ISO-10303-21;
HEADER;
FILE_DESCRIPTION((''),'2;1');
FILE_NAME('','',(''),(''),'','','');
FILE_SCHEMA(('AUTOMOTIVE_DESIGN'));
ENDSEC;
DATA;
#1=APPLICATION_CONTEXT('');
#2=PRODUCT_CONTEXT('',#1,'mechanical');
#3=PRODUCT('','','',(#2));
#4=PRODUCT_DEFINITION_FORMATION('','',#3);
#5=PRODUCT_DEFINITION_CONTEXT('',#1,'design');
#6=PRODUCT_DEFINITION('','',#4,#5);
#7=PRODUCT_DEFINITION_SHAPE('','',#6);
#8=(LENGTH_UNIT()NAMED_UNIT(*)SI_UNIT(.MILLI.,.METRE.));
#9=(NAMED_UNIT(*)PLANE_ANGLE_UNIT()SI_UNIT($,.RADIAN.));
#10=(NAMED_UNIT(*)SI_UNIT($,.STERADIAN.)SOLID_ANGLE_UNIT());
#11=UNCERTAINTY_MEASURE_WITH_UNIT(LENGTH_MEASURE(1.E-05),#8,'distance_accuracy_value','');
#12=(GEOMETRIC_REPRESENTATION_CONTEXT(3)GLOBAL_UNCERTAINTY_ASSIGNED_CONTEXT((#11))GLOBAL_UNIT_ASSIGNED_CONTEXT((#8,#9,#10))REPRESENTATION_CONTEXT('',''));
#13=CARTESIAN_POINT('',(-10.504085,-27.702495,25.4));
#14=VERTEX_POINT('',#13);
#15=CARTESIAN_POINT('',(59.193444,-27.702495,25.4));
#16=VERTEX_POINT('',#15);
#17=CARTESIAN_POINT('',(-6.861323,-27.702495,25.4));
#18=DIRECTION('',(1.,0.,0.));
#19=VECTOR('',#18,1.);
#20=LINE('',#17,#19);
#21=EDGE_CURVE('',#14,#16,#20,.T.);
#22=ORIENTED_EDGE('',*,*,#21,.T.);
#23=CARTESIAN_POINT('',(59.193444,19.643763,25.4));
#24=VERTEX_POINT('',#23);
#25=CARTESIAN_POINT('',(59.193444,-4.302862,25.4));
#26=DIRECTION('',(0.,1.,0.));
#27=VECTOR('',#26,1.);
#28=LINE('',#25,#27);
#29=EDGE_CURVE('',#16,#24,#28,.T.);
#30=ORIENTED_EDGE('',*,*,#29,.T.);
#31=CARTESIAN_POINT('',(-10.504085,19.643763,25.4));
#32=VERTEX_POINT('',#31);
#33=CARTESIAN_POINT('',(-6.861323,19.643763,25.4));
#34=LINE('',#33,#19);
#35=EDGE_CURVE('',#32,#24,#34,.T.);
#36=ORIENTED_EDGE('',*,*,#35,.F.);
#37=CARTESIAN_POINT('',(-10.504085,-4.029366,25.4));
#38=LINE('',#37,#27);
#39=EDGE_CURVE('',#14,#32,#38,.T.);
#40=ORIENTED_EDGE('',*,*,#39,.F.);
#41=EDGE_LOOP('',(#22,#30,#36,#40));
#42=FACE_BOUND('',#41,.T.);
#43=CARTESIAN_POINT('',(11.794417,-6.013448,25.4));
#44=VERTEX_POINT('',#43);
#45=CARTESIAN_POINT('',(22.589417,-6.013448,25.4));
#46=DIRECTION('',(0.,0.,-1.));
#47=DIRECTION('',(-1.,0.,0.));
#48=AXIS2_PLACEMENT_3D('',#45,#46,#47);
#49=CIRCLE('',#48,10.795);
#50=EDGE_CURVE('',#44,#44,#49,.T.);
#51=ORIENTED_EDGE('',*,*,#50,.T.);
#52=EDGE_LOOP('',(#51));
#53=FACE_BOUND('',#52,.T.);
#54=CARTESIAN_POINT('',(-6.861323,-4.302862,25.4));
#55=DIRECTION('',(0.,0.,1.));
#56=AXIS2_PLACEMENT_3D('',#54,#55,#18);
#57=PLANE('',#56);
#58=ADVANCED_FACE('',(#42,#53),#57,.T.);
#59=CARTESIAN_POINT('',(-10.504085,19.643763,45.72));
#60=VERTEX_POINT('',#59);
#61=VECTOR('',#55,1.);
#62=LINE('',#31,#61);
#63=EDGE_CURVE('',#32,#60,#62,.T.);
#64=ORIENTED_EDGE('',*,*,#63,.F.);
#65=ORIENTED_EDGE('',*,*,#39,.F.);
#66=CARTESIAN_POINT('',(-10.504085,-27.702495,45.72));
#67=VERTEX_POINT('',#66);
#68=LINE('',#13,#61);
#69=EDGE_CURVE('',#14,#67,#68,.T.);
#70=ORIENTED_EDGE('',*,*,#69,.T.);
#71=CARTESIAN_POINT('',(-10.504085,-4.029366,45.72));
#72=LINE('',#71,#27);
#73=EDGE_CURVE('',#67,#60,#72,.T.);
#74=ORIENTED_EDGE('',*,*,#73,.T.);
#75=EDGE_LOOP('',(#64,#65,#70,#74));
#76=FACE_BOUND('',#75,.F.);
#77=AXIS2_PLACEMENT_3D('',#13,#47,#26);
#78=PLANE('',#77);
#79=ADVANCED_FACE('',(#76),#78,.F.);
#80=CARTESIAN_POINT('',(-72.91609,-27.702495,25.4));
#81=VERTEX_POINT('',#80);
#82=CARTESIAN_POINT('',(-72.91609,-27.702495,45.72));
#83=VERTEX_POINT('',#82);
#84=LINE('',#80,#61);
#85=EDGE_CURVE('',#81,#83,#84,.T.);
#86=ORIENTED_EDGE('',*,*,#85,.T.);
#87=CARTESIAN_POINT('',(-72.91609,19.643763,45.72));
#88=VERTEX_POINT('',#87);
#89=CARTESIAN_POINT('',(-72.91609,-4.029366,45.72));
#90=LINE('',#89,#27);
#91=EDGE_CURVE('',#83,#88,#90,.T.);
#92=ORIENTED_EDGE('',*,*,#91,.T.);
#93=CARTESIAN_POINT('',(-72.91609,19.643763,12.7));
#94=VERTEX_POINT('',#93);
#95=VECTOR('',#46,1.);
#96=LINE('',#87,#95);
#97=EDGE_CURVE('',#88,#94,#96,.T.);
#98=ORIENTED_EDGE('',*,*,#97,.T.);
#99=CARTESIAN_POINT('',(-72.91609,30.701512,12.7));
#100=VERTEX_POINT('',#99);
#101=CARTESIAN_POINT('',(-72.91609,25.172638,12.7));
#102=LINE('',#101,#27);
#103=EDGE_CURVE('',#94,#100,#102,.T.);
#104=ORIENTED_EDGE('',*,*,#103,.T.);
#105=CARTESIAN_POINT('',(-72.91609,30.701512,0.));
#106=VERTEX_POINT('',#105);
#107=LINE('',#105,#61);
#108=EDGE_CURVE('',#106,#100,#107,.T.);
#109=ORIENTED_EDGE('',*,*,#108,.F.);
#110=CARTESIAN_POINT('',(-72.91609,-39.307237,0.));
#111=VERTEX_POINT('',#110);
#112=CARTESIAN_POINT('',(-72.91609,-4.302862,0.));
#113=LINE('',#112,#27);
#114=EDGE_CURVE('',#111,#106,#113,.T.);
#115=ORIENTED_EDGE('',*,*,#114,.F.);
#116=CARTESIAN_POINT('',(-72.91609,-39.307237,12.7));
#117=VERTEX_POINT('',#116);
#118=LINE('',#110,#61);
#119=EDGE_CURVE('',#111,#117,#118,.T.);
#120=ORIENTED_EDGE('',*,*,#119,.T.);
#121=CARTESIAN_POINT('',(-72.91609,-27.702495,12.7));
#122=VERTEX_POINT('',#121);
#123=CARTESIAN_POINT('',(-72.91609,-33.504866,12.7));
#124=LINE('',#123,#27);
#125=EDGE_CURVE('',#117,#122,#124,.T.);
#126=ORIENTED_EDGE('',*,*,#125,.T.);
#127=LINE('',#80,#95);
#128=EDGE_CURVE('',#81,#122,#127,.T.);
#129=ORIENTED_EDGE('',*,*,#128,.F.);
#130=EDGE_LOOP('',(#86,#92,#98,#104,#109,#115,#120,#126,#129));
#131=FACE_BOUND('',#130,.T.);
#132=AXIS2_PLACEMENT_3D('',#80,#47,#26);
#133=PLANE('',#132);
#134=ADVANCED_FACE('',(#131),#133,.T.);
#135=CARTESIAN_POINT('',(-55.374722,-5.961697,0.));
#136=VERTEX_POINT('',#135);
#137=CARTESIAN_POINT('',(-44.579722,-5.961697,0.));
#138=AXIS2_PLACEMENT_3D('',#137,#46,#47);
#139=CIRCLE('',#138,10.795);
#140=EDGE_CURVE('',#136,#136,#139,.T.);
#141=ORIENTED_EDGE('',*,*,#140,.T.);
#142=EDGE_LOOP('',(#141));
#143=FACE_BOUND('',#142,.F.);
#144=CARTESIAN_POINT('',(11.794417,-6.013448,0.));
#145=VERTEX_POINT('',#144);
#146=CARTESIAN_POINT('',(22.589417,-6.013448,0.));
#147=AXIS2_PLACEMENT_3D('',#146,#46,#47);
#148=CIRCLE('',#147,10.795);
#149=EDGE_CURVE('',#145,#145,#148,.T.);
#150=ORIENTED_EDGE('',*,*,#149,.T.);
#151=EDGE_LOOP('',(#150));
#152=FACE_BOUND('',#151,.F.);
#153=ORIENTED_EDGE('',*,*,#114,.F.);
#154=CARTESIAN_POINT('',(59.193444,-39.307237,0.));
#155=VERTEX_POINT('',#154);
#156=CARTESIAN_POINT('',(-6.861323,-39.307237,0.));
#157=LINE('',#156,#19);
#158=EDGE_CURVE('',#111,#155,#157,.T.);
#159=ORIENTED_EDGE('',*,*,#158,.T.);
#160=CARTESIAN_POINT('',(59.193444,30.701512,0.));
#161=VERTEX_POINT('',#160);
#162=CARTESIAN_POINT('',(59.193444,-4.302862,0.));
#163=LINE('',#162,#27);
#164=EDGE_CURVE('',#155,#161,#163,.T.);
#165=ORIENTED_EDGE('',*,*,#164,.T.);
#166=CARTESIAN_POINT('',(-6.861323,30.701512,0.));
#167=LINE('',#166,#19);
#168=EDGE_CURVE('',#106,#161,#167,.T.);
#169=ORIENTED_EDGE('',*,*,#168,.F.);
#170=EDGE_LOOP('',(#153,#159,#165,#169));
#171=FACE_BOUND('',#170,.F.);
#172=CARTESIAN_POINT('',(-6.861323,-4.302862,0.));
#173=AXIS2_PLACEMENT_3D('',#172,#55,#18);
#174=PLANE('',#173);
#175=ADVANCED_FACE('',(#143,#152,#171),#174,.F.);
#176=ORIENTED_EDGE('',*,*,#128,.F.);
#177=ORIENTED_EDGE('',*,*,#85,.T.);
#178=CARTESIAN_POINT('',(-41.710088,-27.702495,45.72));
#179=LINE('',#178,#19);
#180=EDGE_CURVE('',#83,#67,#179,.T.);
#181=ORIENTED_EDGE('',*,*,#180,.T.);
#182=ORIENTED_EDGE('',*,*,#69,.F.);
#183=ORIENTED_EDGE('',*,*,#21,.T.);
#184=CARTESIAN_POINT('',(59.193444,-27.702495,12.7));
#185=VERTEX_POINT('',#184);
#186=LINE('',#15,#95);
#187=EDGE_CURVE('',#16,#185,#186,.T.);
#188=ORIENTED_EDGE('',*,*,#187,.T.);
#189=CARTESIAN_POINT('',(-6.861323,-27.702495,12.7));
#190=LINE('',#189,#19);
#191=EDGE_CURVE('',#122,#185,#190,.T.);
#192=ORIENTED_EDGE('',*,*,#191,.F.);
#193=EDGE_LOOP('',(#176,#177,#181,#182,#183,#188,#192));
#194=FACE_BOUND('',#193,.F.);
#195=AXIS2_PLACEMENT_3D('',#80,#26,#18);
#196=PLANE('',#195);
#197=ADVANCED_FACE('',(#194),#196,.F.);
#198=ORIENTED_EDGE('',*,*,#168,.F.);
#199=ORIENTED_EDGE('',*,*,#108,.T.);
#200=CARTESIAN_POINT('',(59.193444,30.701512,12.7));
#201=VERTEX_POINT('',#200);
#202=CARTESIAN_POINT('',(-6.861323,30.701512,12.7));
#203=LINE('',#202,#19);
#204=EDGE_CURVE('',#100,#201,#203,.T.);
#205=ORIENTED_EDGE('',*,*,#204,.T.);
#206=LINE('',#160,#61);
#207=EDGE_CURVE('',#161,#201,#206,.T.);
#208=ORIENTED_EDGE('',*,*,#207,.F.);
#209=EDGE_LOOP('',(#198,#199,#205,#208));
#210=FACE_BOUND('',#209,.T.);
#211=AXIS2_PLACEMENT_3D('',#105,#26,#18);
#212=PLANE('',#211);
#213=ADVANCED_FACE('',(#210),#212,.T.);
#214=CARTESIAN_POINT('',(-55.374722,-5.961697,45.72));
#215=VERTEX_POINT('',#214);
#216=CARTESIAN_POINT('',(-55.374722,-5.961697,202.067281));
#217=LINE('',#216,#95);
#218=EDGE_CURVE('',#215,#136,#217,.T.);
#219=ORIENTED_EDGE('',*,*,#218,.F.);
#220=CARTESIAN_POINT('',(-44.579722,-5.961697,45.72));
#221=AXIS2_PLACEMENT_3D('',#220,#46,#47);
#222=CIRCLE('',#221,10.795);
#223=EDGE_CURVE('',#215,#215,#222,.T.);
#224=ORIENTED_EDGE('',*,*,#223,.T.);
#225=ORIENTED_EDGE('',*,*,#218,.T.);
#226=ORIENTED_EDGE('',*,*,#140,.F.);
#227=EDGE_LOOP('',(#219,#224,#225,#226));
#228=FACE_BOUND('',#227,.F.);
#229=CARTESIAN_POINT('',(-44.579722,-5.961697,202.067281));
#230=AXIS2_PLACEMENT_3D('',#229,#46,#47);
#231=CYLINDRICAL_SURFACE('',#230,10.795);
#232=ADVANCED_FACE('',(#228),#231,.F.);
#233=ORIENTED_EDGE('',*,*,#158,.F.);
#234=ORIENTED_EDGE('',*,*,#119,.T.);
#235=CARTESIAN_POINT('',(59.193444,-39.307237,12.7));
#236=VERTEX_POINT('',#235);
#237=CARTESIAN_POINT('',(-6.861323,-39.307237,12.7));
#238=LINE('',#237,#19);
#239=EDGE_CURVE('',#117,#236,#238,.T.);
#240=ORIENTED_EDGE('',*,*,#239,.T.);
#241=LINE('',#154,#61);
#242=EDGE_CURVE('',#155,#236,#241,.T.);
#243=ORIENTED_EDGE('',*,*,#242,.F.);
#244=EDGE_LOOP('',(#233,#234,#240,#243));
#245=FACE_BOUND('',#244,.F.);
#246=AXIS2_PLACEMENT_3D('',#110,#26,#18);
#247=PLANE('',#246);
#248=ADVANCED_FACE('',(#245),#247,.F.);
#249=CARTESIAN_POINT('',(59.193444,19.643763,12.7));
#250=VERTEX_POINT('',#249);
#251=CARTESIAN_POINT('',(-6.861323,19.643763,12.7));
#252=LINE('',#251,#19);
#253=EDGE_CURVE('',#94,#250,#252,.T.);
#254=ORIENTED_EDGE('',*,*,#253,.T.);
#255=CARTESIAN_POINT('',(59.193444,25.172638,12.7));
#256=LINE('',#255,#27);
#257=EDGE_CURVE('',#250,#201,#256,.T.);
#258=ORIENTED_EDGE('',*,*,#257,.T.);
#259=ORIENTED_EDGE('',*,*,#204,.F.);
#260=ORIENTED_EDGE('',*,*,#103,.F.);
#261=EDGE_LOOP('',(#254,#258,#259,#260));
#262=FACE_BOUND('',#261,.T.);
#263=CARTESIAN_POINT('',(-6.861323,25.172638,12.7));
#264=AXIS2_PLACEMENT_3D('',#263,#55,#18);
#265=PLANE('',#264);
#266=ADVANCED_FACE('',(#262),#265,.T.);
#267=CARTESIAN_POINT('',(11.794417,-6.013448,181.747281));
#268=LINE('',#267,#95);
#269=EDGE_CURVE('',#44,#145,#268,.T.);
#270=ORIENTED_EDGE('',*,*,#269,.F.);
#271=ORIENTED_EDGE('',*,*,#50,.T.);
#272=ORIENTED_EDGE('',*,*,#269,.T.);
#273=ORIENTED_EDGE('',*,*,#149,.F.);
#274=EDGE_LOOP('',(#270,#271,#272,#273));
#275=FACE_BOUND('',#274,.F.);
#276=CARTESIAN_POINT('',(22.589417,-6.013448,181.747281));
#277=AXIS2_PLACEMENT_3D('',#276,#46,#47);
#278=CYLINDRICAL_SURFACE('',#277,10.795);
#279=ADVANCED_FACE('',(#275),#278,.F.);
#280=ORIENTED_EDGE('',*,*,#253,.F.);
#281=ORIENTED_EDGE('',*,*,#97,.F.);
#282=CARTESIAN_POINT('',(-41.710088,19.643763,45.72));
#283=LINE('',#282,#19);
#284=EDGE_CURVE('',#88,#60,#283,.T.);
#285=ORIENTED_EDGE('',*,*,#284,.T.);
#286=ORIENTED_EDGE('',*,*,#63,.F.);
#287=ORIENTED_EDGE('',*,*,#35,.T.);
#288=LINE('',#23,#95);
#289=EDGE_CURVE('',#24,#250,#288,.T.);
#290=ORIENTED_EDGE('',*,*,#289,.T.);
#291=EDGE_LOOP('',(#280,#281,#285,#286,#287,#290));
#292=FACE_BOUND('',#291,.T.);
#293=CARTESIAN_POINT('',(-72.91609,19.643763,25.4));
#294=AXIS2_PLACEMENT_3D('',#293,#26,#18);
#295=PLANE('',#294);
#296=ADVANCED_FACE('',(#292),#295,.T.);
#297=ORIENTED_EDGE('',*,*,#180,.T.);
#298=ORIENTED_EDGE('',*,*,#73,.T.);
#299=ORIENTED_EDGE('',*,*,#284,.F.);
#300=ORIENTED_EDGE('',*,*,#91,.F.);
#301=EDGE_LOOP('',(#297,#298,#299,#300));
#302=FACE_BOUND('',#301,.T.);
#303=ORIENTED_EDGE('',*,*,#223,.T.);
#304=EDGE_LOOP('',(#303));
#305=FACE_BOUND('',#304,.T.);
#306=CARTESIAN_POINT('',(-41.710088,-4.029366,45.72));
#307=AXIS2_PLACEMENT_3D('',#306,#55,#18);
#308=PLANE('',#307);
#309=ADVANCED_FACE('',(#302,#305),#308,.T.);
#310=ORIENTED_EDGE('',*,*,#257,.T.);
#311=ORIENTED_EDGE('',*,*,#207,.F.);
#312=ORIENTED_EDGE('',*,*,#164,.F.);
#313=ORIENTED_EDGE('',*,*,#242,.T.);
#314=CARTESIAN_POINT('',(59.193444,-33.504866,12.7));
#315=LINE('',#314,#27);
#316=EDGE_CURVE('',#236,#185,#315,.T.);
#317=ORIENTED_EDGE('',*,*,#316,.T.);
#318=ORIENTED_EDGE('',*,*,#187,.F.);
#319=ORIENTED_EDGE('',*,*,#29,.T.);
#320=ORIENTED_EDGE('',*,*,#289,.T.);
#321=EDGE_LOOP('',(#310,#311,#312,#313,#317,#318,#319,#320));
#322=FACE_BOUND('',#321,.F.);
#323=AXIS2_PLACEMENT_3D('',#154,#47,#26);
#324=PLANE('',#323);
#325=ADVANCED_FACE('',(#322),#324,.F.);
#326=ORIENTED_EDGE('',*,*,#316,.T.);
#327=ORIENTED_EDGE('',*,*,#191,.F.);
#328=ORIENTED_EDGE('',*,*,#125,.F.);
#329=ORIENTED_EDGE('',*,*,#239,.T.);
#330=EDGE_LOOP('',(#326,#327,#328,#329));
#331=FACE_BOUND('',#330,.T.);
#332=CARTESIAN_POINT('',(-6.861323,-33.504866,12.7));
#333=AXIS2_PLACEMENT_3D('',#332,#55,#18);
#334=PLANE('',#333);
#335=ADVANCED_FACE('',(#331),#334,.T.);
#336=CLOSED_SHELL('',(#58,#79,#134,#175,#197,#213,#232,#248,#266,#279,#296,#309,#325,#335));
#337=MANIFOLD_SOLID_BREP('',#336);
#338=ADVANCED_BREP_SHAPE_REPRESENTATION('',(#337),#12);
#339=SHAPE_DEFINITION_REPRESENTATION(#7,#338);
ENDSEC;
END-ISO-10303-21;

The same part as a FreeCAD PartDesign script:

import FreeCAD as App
import Part
import Sketcher
Q = App.Units.Quantity


def add_polygon(sketch, points):
    """Adds a closed chain of lines whose ends are joined by coincident constraints."""
    first, n = sketch.GeometryCount, len(points)
    for a, b in zip(points, points[1:] + points[:1]):
        sketch.addGeometry(Part.LineSegment(App.Vector(*a, 0), App.Vector(*b, 0)), False)
    for i in range(n):
        sketch.addConstraint(Sketcher.Constraint("Coincident", first + i, 2, first + (i + 1) % n, 1))

doc = App.newDocument("Part")
body = doc.addObject("PartDesign::Body", "Body")

# Sketch on XY plane
sketch1 = doc.addObject("Sketcher::SketchObject", "Sketch")
body.addObject(sketch1)
sketch1.AttachmentSupport = (doc.XY_Plane, [""])
sketch1.MapMode = "FlatFace"
add_polygon(sketch1, [(-73, 31), (-73, -39), (59, -39), (59, 31)])  # lines 0-3
sketch1.addConstraint(Sketcher.Constraint("Vertical", 0))
sketch1.addConstraint(Sketcher.Constraint("Horizontal", 1))
sketch1.addConstraint(Sketcher.Constraint("Vertical", 2))
sketch1.addConstraint(Sketcher.Constraint("Horizontal", 3))
sketch1.addConstraint(Sketcher.Constraint("DistanceY", 0, 2, 0, 1, 70.008749))
sketch1.addConstraint(Sketcher.Constraint("DistanceX", 1, 1, 1, 2, 132.109534))
sketch1.addConstraint(Sketcher.Constraint("DistanceX", 0, 2, -1, 1, 72.91609))
sketch1.addConstraint(Sketcher.Constraint("DistanceY", 0, 2, -1, 1, 39.307237))
pad1 = doc.addObject("PartDesign::Pad", "Pad")
body.addObject(pad1)
pad1.Profile = sketch1
pad1.Length = Q("1 in")

# Sketch on XY plane
sketch2 = doc.addObject("Sketcher::SketchObject", "Sketch001")
body.addObject(sketch2)
sketch2.AttachmentSupport = (doc.XY_Plane, [""])
sketch2.MapMode = "FlatFace"
sketch2.AttachmentOffset = App.Placement(App.Vector(0, 0, 1 * 25.4), App.Rotation())
add_polygon(sketch2, [(-73, -28), (-73, -39), (59, -39), (59, -28)])  # lines 0-3
sketch2.addConstraint(Sketcher.Constraint("Vertical", 0))
sketch2.addConstraint(Sketcher.Constraint("Horizontal", 1))
sketch2.addConstraint(Sketcher.Constraint("Vertical", 2))
sketch2.addConstraint(Sketcher.Constraint("Horizontal", 3))
sketch2.addConstraint(Sketcher.Constraint("DistanceY", 0, 2, 0, 1, 11.604741))
sketch2.addConstraint(Sketcher.Constraint("DistanceX", 1, 1, 1, 2, 132.109534))
sketch2.addConstraint(Sketcher.Constraint("DistanceX", 0, 2, -1, 1, 72.91609))
sketch2.addConstraint(Sketcher.Constraint("DistanceY", 0, 2, -1, 1, 39.307237))
pocket1 = doc.addObject("PartDesign::Pocket", "Pocket")
body.addObject(pocket1)
pocket1.Profile = sketch2
pocket1.Length = Q("0.5 in")

# Sketch on XY plane
sketch3 = doc.addObject("Sketcher::SketchObject", "Sketch002")
body.addObject(sketch3)
sketch3.AttachmentSupport = (doc.XY_Plane, [""])
sketch3.MapMode = "FlatFace"
sketch3.AttachmentOffset = App.Placement(App.Vector(0, 0, 1 * 25.4), App.Rotation())
add_polygon(sketch3, [(-73, 31), (-73, 20), (59, 20), (59, 31)])  # lines 0-3
sketch3.addConstraint(Sketcher.Constraint("Vertical", 0))
sketch3.addConstraint(Sketcher.Constraint("Horizontal", 1))
sketch3.addConstraint(Sketcher.Constraint("Vertical", 2))
sketch3.addConstraint(Sketcher.Constraint("Horizontal", 3))
sketch3.addConstraint(Sketcher.Constraint("DistanceY", 0, 2, 0, 1, 11.057749))
sketch3.addConstraint(Sketcher.Constraint("DistanceX", 1, 1, 1, 2, 132.109534))
sketch3.addConstraint(Sketcher.Constraint("DistanceX", 0, 2, -1, 1, 72.91609))
sketch3.addConstraint(Sketcher.Constraint("DistanceY", -1, 1, 0, 2, 19.643763))
pocket2 = doc.addObject("PartDesign::Pocket", "Pocket001")
body.addObject(pocket2)
pocket2.Profile = sketch3
pocket2.Length = Q("0.5 in")

# Sketch on XY plane
sketch4 = doc.addObject("Sketcher::SketchObject", "Sketch003")
body.addObject(sketch4)
sketch4.AttachmentSupport = (doc.XY_Plane, [""])
sketch4.MapMode = "FlatFace"
sketch4.AttachmentOffset = App.Placement(App.Vector(0, 0, 1 * 25.4), App.Rotation())
add_polygon(sketch4, [(-73, 20), (-73, -28), (-11, -28), (-11, 20)])  # lines 0-3
sketch4.addConstraint(Sketcher.Constraint("Vertical", 0))
sketch4.addConstraint(Sketcher.Constraint("Horizontal", 1))
sketch4.addConstraint(Sketcher.Constraint("Vertical", 2))
sketch4.addConstraint(Sketcher.Constraint("Horizontal", 3))
sketch4.addConstraint(Sketcher.Constraint("DistanceY", 0, 2, 0, 1, 47.346259))
sketch4.addConstraint(Sketcher.Constraint("DistanceX", 1, 1, 1, 2, 62.412006))
sketch4.addConstraint(Sketcher.Constraint("DistanceX", 0, 2, -1, 1, 72.91609))
sketch4.addConstraint(Sketcher.Constraint("DistanceY", 0, 2, -1, 1, 27.702495))
pad2 = doc.addObject("PartDesign::Pad", "Pad001")
body.addObject(pad2)
pad2.Profile = sketch4
pad2.Length = Q("0.8 in")

# Sketch on XY plane
sketch5 = doc.addObject("Sketcher::SketchObject", "Sketch004")
body.addObject(sketch5)
sketch5.AttachmentSupport = (doc.XY_Plane, [""])
sketch5.MapMode = "FlatFace"
sketch5.AttachmentOffset = App.Placement(App.Vector(0, 0, 1.8 * 25.4), App.Rotation())
sketch5.addGeometry(Part.Circle(App.Vector(-45, -6, 0), App.Vector(0, 0, 1), 11), False)
sketch5.addConstraint(Sketcher.Constraint("Diameter", 0, Q("0.85 in")))
sketch5.addConstraint(Sketcher.Constraint("DistanceX", 0, 3, -1, 1, 44.579722))
sketch5.addConstraint(Sketcher.Constraint("DistanceY", 0, 3, -1, 1, 5.961697))
doc.recompute()
hole = doc.addObject("PartDesign::Hole", "Hole")
body.addObject(hole)
hole.Profile = sketch5
hole.ThreadType = "None"
hole.Diameter = Q("0.85 in")
hole.DepthType = "ThroughAll"

# Sketch on XY plane
sketch6 = doc.addObject("Sketcher::SketchObject", "Sketch005")
body.addObject(sketch6)
sketch6.AttachmentSupport = (doc.XY_Plane, [""])
sketch6.MapMode = "FlatFace"
sketch6.AttachmentOffset = App.Placement(App.Vector(0, 0, 1 * 25.4), App.Rotation())
sketch6.addGeometry(Part.Circle(App.Vector(23, -6, 0), App.Vector(0, 0, 1), 11), False)
sketch6.addConstraint(Sketcher.Constraint("Diameter", 0, Q("0.85 in")))
sketch6.addConstraint(Sketcher.Constraint("DistanceX", -1, 1, 0, 3, 22.589417))
sketch6.addConstraint(Sketcher.Constraint("DistanceY", 0, 3, -1, 1, 6.013448))
doc.recompute()
hole2 = doc.addObject("PartDesign::Hole", "Hole001")
body.addObject(hole2)
hole2.Profile = sketch6
hole2.ThreadType = "None"
hole2.Diameter = Q("0.85 in")
hole2.DepthType = "ThroughAll"

doc.recompute()
